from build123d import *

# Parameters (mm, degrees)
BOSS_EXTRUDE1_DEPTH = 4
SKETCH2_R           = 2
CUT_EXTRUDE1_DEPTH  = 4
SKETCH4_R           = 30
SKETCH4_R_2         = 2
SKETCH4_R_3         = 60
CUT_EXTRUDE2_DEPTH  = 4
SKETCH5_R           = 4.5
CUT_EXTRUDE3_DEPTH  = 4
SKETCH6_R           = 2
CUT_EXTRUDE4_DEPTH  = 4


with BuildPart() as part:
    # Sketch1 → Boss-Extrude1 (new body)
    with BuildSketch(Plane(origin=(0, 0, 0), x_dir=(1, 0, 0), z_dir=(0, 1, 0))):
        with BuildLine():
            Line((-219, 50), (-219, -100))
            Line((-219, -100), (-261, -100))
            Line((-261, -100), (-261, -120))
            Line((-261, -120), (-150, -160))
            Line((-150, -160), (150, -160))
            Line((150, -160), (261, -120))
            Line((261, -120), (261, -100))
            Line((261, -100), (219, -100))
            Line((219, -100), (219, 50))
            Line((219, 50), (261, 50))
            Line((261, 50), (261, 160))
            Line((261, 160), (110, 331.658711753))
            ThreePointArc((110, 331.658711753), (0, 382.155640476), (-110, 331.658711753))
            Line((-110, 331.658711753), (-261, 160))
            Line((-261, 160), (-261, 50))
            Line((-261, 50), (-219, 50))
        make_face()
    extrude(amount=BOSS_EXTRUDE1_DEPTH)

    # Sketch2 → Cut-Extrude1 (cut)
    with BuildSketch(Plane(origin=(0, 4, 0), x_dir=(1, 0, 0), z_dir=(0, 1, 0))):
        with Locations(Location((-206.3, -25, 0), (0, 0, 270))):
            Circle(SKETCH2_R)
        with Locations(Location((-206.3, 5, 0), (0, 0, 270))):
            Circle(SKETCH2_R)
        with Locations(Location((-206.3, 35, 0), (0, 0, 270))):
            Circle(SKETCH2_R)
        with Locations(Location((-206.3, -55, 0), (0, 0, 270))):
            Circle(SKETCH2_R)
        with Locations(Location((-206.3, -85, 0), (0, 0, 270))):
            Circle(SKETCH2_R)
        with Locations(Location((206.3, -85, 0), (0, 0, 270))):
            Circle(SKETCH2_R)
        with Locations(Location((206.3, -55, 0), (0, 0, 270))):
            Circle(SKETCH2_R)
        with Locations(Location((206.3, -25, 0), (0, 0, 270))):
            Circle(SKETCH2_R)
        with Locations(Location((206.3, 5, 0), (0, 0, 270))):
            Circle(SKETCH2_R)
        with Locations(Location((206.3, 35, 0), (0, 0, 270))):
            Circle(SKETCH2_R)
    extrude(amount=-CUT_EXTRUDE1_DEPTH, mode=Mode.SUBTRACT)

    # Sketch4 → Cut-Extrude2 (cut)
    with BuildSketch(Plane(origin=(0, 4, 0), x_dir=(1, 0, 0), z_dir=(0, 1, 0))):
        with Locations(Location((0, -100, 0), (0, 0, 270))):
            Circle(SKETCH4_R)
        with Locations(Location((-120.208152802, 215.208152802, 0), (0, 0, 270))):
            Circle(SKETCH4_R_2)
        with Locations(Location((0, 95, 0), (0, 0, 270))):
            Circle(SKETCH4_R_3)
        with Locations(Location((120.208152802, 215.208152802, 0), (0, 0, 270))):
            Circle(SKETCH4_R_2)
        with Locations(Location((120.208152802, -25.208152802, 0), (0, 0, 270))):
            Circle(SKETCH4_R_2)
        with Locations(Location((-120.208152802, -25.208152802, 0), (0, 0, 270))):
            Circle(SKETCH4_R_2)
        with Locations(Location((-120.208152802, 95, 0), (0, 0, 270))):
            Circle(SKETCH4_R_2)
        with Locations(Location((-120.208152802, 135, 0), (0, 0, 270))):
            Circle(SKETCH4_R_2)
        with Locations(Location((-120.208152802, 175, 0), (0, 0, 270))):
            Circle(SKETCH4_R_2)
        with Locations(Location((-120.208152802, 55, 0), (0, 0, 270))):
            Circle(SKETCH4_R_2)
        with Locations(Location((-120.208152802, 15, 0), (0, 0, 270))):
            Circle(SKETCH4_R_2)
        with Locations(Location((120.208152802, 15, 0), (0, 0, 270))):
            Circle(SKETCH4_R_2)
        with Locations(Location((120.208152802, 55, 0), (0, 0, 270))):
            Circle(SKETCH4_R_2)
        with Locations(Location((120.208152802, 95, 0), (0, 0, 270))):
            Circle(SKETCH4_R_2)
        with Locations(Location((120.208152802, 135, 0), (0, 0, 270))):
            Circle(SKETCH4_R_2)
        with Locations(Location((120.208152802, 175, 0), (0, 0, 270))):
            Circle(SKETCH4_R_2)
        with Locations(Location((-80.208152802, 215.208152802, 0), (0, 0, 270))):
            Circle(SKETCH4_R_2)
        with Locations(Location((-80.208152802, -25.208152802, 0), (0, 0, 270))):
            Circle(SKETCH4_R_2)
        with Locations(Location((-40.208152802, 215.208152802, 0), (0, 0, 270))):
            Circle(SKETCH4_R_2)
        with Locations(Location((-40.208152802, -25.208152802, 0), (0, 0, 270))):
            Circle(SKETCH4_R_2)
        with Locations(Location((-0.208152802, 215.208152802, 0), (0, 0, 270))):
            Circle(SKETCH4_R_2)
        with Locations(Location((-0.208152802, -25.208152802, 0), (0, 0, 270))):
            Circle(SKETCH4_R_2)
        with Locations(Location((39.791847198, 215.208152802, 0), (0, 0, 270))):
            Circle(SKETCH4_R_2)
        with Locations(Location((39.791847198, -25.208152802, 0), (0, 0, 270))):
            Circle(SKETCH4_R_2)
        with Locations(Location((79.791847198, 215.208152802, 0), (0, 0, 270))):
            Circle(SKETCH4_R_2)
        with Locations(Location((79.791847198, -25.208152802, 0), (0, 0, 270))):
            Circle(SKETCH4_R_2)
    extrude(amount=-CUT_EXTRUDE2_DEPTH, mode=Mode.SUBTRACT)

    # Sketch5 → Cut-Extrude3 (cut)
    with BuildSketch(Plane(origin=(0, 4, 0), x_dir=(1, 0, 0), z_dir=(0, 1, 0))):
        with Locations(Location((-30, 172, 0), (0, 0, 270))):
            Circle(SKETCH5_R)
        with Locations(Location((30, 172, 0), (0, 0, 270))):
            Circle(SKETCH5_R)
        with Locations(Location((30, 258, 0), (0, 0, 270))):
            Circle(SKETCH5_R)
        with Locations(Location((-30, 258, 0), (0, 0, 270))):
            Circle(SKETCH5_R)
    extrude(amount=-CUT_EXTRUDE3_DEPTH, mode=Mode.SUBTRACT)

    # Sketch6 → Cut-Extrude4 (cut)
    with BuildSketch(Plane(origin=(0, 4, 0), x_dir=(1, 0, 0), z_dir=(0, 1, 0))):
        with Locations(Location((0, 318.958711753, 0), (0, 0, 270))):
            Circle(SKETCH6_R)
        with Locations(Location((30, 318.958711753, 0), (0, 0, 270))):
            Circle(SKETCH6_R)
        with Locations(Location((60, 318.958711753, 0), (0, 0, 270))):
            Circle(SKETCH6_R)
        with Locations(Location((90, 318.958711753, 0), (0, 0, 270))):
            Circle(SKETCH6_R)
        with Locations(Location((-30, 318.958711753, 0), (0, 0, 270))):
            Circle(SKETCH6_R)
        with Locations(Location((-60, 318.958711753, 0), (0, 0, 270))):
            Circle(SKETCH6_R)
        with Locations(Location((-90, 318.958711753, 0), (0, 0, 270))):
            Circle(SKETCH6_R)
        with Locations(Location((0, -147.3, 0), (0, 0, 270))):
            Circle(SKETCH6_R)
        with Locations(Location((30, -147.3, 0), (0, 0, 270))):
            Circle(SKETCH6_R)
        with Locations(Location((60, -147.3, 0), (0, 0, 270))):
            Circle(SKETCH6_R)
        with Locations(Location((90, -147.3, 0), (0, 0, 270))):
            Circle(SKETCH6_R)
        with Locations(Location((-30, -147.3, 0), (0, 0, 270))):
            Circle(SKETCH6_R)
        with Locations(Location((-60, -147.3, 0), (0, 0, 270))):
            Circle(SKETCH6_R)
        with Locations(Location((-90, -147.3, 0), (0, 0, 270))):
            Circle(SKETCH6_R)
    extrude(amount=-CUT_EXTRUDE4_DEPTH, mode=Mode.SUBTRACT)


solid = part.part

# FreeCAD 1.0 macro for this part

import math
import FreeCAD as App
import Part
import Sketcher
from FreeCAD import Vector

doc = App.newDocument("Part")
params = doc.addObject("Spreadsheet::Sheet", "Params")
for row, (alias, value) in enumerate([
    ("sketch1_width", "42 mm"),
    ("sketch1_width2", "300 mm"),
    ("sketch1_height", "150 mm"),
    ("sketch1_height2", "20 mm"),
    ("sketch1_height3", "110 mm"),
    ("pad1_length", "4 mm"),
    ("sketch2_diameter", "4 mm"),
    ("pocket1_length", "4 mm"),
    ("sketch3_diameter", "60 mm"),
    ("sketch3_diameter2", "4 mm"),
    ("sketch3_diameter3", "120 mm"),
    ("pocket2_length", "4 mm"),
    ("sketch4_diameter", "9 mm"),
    ("pocket3_length", "4 mm"),
    ("sketch5_diameter", "4 mm"),
    ("pocket4_length", "4 mm"),
], start=1):
    params.set(f"A{row}", alias)
    params.set(f"B{row}", "=" + value)
    params.setAlias(f"B{row}", alias)

body = doc.addObject("PartDesign::Body", "Body")

sketch1 = body.newObject("Sketcher::SketchObject", "Sketch")
sketch1.AttachmentSupport = (doc.getObject("XZ_Plane"), [""])
sketch1.MapMode = "FlatFace"
sketch1.addGeometry([
    Part.LineSegment(Vector(-219, -50, 0), Vector(-219, 100, 0)),
    Part.LineSegment(Vector(-219, 100, 0), Vector(-261, 100, 0)),
    Part.LineSegment(Vector(-261, 100, 0), Vector(-261, 120, 0)),
    Part.LineSegment(Vector(-261, 120, 0), Vector(-150, 160, 0)),
    Part.LineSegment(Vector(-150, 160, 0), Vector(150, 160, 0)),
    Part.LineSegment(Vector(150, 160, 0), Vector(261, 120, 0)),
    Part.LineSegment(Vector(261, 120, 0), Vector(261, 100, 0)),
    Part.LineSegment(Vector(261, 100, 0), Vector(219, 100, 0)),
    Part.LineSegment(Vector(219, 100, 0), Vector(219, -50, 0)),
    Part.LineSegment(Vector(219, -50, 0), Vector(261, -50, 0)),
    Part.LineSegment(Vector(261, -50, 0), Vector(261, -160, 0)),
    Part.LineSegment(Vector(261, -160, 0), Vector(110, -332, 0)),
    Part.ArcOfCircle(Part.Circle(Vector(0, -237, 0), Vector(0, 0, 1), 145), math.radians(-139), math.radians(-41)),
    Part.LineSegment(Vector(-110, -332, 0), Vector(-261, -160, 0)),
    Part.LineSegment(Vector(-261, -160, 0), Vector(-261, -50, 0)),
    Part.LineSegment(Vector(-261, -50, 0), Vector(-219, -50, 0)),
], False)
sketch1.addConstraint([
    Sketcher.Constraint("Coincident", 0, 2, 1, 1),
    Sketcher.Constraint("Coincident", 1, 2, 2, 1),
    Sketcher.Constraint("Coincident", 2, 2, 3, 1),
    Sketcher.Constraint("Coincident", 3, 2, 4, 1),
    Sketcher.Constraint("Coincident", 4, 2, 5, 1),
    Sketcher.Constraint("Coincident", 5, 2, 6, 1),
    Sketcher.Constraint("Coincident", 6, 2, 7, 1),
    Sketcher.Constraint("Coincident", 7, 2, 8, 1),
    Sketcher.Constraint("Coincident", 8, 2, 9, 1),
    Sketcher.Constraint("Coincident", 9, 2, 10, 1),
    Sketcher.Constraint("Coincident", 10, 2, 11, 1),
    Sketcher.Constraint("Coincident", 11, 2, 12, 2),
    Sketcher.Constraint("Coincident", 12, 1, 13, 1),
    Sketcher.Constraint("Coincident", 13, 2, 14, 1),
    Sketcher.Constraint("Coincident", 14, 2, 15, 1),
    Sketcher.Constraint("Coincident", 15, 2, 0, 1),
    Sketcher.Constraint("Vertical", 0),
    Sketcher.Constraint("Horizontal", 1),
    Sketcher.Constraint("Vertical", 2),
    Sketcher.Constraint("Horizontal", 4),
    Sketcher.Constraint("Vertical", 6),
    Sketcher.Constraint("Horizontal", 7),
    Sketcher.Constraint("Vertical", 8),
    Sketcher.Constraint("Horizontal", 9),
    Sketcher.Constraint("Vertical", 10),
    Sketcher.Constraint("Vertical", 14),
    Sketcher.Constraint("Horizontal", 15),
    Sketcher.Constraint("Symmetric", 2, 2, 5, 2, -2),
    Sketcher.Constraint("Symmetric", 0, 2, 7, 2, -2),
    Sketcher.Constraint("Symmetric", 11, 2, 12, 1, -2),
    Sketcher.Constraint("Symmetric", 10, 2, 13, 2, -2),
    Sketcher.Constraint("Horizontal", 9, 2, 14, 2),
    Sketcher.Constraint("Vertical", 6, 2, 9, 2),
    Sketcher.Constraint("Equal", 3, 5),
    Sketcher.Constraint("DistanceX", 1, 2, 1, 1, 42.0),
    Sketcher.Constraint("DistanceX", 4, 1, 4, 2, 300.0),
    Sketcher.Constraint("DistanceY", 0, 1, 0, 2, 150.0),
    Sketcher.Constraint("DistanceY", 2, 1, 2, 2, 20.0),
    Sketcher.Constraint("DistanceY", 10, 2, 10, 1, 110.0),
    Sketcher.Constraint("DistanceX", 0, 2, -1, 1, 219.0),
    Sketcher.Constraint("DistanceY", -1, 1, 0, 2, 100.0),
    Sketcher.Constraint("DistanceY", -1, 1, 3, 2, 160.0),
    Sketcher.Constraint("DistanceX", -1, 1, 11, 2, 110.0),
    Sketcher.Constraint("Radius", 12, 145.057731),
    Sketcher.Constraint("Distance", 11, 228.621332),
])
sketch1.setExpression("Constraints[34]", "Params.sketch1_width")
sketch1.setExpression("Constraints[35]", "Params.sketch1_width2")
sketch1.setExpression("Constraints[36]", "Params.sketch1_height")
sketch1.setExpression("Constraints[37]", "Params.sketch1_height2")
sketch1.setExpression("Constraints[38]", "Params.sketch1_height3")
pad1 = body.newObject("PartDesign::Pad", "Pad")
pad1.Profile = sketch1
pad1.setExpression("Length", "Params.pad1_length")
pad1.Reversed = True

sketch2 = body.newObject("Sketcher::SketchObject", "Sketch001")
sketch2.AttachmentSupport = (doc.getObject("XZ_Plane"), [""])
sketch2.MapMode = "FlatFace"
sketch2.AttachmentOffset = App.Placement(Vector(0, 0, -4), App.Rotation())
sketch2.addGeometry([
    Part.Circle(Vector(-206.3, 25, 0), Vector(0, 0, 1), 2),
    Part.Circle(Vector(-206.3, -5, 0), Vector(0, 0, 1), 2),
    Part.Circle(Vector(-206.3, -35, 0), Vector(0, 0, 1), 2),
    Part.Circle(Vector(-206.3, 55, 0), Vector(0, 0, 1), 2),
    Part.Circle(Vector(-206.3, 85, 0), Vector(0, 0, 1), 2),
    Part.Circle(Vector(206.3, 85, 0), Vector(0, 0, 1), 2),
    Part.Circle(Vector(206.3, 55, 0), Vector(0, 0, 1), 2),
    Part.Circle(Vector(206.3, 25, 0), Vector(0, 0, 1), 2),
    Part.Circle(Vector(206.3, -5, 0), Vector(0, 0, 1), 2),
    Part.Circle(Vector(206.3, -35, 0), Vector(0, 0, 1), 2),
], False)
sketch2.addConstraint([
    Sketcher.Constraint("Equal", 0, 1),
    Sketcher.Constraint("Equal", 1, 2),
    Sketcher.Constraint("Equal", 2, 3),
    Sketcher.Constraint("Equal", 3, 4),
    Sketcher.Constraint("Equal", 4, 5),
    Sketcher.Constraint("Equal", 5, 6),
    Sketcher.Constraint("Equal", 6, 7),
    Sketcher.Constraint("Equal", 7, 8),
    Sketcher.Constraint("Equal", 8, 9),
    Sketcher.Constraint("Symmetric", 4, 3, 5, 3, -2),
    Sketcher.Constraint("Symmetric", 3, 3, 6, 3, -2),
    Sketcher.Constraint("Symmetric", 0, 3, 7, 3, -2),
    Sketcher.Constraint("Symmetric", 1, 3, 8, 3, -2),
    Sketcher.Constraint("Symmetric", 2, 3, 9, 3, -2),
    Sketcher.Constraint("Vertical", 0, 3, 1, 3),
    Sketcher.Constraint("Vertical", 1, 3, 2, 3),
    Sketcher.Constraint("Vertical", 2, 3, 3, 3),
    Sketcher.Constraint("Vertical", 3, 3, 4, 3),
    Sketcher.Constraint("Diameter", 0, 4.0),
    Sketcher.Constraint("DistanceY", -1, 1, 0, 3, 25.0),
    Sketcher.Constraint("DistanceY", 1, 3, -1, 1, 5.0),
    Sketcher.Constraint("DistanceY", 2, 3, -1, 1, 35.0),
    Sketcher.Constraint("DistanceY", -1, 1, 3, 3, 55.0),
    Sketcher.Constraint("DistanceY", -1, 1, 4, 3, 85.0),
    Sketcher.Constraint("DistanceX", 0, 3, -1, 1, 206.3),
])
sketch2.setExpression("Constraints[18]", "Params.sketch2_diameter")
pocket1 = body.newObject("PartDesign::Pocket", "Pocket")
pocket1.Profile = sketch2
pocket1.setExpression("Length", "Params.pocket1_length")
pocket1.Reversed = True

sketch3 = body.newObject("Sketcher::SketchObject", "Sketch002")
sketch3.AttachmentSupport = (doc.getObject("XZ_Plane"), [""])
sketch3.MapMode = "FlatFace"
sketch3.AttachmentOffset = App.Placement(Vector(0, 0, -4), App.Rotation())
sketch3.addGeometry([
    Part.Circle(Vector(0, 100, 0), Vector(0, 0, 1), 30),
    Part.Circle(Vector(-120.2, -215.2, 0), Vector(0, 0, 1), 2),
    Part.Circle(Vector(0, -95, 0), Vector(0, 0, 1), 60),
    Part.Circle(Vector(120.2, -215.2, 0), Vector(0, 0, 1), 2),
    Part.Circle(Vector(120.2, 25.2, 0), Vector(0, 0, 1), 2),
    Part.Circle(Vector(-120.2, 25.2, 0), Vector(0, 0, 1), 2),
    Part.Circle(Vector(-120.2, -95, 0), Vector(0, 0, 1), 2),
    Part.Circle(Vector(-120.2, -135, 0), Vector(0, 0, 1), 2),
    Part.Circle(Vector(-120.2, -175, 0), Vector(0, 0, 1), 2),
    Part.Circle(Vector(-120.2, -55, 0), Vector(0, 0, 1), 2),
    Part.Circle(Vector(-120.2, -15, 0), Vector(0, 0, 1), 2),
    Part.Circle(Vector(120.2, -15, 0), Vector(0, 0, 1), 2),
    Part.Circle(Vector(120.2, -55, 0), Vector(0, 0, 1), 2),
    Part.Circle(Vector(120.2, -95, 0), Vector(0, 0, 1), 2),
    Part.Circle(Vector(120.2, -135, 0), Vector(0, 0, 1), 2),
    Part.Circle(Vector(120.2, -175, 0), Vector(0, 0, 1), 2),
    Part.Circle(Vector(-80.2, -215.2, 0), Vector(0, 0, 1), 2),
    Part.Circle(Vector(-80.2, 25.2, 0), Vector(0, 0, 1), 2),
    Part.Circle(Vector(-40.2, -215.2, 0), Vector(0, 0, 1), 2),
    Part.Circle(Vector(-40.2, 25.2, 0), Vector(0, 0, 1), 2),
    Part.Circle(Vector(-0.2, -215.2, 0), Vector(0, 0, 1), 2),
    Part.Circle(Vector(-0.2, 25.2, 0), Vector(0, 0, 1), 2),
    Part.Circle(Vector(39.8, -215.2, 0), Vector(0, 0, 1), 2),
    Part.Circle(Vector(39.8, 25.2, 0), Vector(0, 0, 1), 2),
    Part.Circle(Vector(79.8, -215.2, 0), Vector(0, 0, 1), 2),
    Part.Circle(Vector(79.8, 25.2, 0), Vector(0, 0, 1), 2),
], False)
sketch3.addConstraint([
    Sketcher.Constraint("Equal", 1, 3),
    Sketcher.Constraint("Equal", 3, 4),
    Sketcher.Constraint("Equal", 4, 5),
    Sketcher.Constraint("Equal", 5, 6),
    Sketcher.Constraint("Equal", 6, 7),
    Sketcher.Constraint("Equal", 7, 8),
    Sketcher.Constraint("Equal", 8, 9),
    Sketcher.Constraint("Equal", 9, 10),
    Sketcher.Constraint("Equal", 10, 11),
    Sketcher.Constraint("Equal", 11, 12),
    Sketcher.Constraint("Equal", 12, 13),
    Sketcher.Constraint("Equal", 13, 14),
    Sketcher.Constraint("Equal", 14, 15),
    Sketcher.Constraint("Equal", 15, 16),
    Sketcher.Constraint("Equal", 16, 17),
    Sketcher.Constraint("Equal", 17, 18),
    Sketcher.Constraint("Equal", 18, 19),
    Sketcher.Constraint("Equal", 19, 20),
    Sketcher.Constraint("Equal", 20, 21),
    Sketcher.Constraint("Equal", 21, 22),
    Sketcher.Constraint("Equal", 22, 23),
    Sketcher.Constraint("Equal", 23, 24),
    Sketcher.Constraint("Equal", 24, 25),
    Sketcher.Constraint("Symmetric", 1, 3, 3, 3, -2),
    Sketcher.Constraint("Symmetric", 4, 3, 5, 3, -2),
    Sketcher.Constraint("Symmetric", 10, 3, 11, 3, -2),
    Sketcher.Constraint("Symmetric", 9, 3, 12, 3, -2),
    Sketcher.Constraint("Symmetric", 6, 3, 13, 3, -2),
    Sketcher.Constraint("Symmetric", 7, 3, 14, 3, -2),
    Sketcher.Constraint("Symmetric", 8, 3, 15, 3, -2),
    Sketcher.Constraint("PointOnObject", 0, 3, -2),
    Sketcher.Constraint("PointOnObject", 2, 3, -2),
    Sketcher.Constraint("Horizontal", 2, 3, 6, 3),
    Sketcher.Constraint("Horizontal", 3, 3, 16, 3),
    Sketcher.Constraint("Horizontal", 5, 3, 17, 3),
    Sketcher.Constraint("Horizontal", 16, 3, 18, 3),
    Sketcher.Constraint("Horizontal", 17, 3, 19, 3),
    Sketcher.Constraint("Horizontal", 18, 3, 20, 3),
    Sketcher.Constraint("Horizontal", 19, 3, 21, 3),
    Sketcher.Constraint("Horizontal", 20, 3, 22, 3),
    Sketcher.Constraint("Horizontal", 21, 3, 23, 3),
    Sketcher.Constraint("Horizontal", 22, 3, 24, 3),
    Sketcher.Constraint("Horizontal", 23, 3, 25, 3),
    Sketcher.Constraint("Vertical", 3, 3, 4, 3),
    Sketcher.Constraint("Vertical", 5, 3, 6, 3),
    Sketcher.Constraint("Vertical", 6, 3, 7, 3),
    Sketcher.Constraint("Vertical", 7, 3, 8, 3),
    Sketcher.Constraint("Vertical", 8, 3, 9, 3),
    Sketcher.Constraint("Vertical", 9, 3, 10, 3),
    Sketcher.Constraint("Vertical", 16, 3, 17, 3),
    Sketcher.Constraint("Vertical", 18, 3, 19, 3),
    Sketcher.Constraint("Vertical", 20, 3, 21, 3),
    Sketcher.Constraint("Vertical", 22, 3, 23, 3),
    Sketcher.Constraint("Vertical", 24, 3, 25, 3),
    Sketcher.Constraint("Diameter", 0, 60.0),
    Sketcher.Constraint("Diameter", 1, 4.0),
    Sketcher.Constraint("Diameter", 2, 120.0),
    Sketcher.Constraint("DistanceY", -1, 1, 0, 3, 100.0),
    Sketcher.Constraint("DistanceY", 2, 3, -1, 1, 95.0),
    Sketcher.Constraint("DistanceY", 7, 3, -1, 1, 135.0),
    Sketcher.Constraint("DistanceY", 8, 3, -1, 1, 175.0),
    Sketcher.Constraint("DistanceY", 9, 3, -1, 1, 55.0),
    Sketcher.Constraint("DistanceY", 10, 3, -1, 1, 15.0),
    Sketcher.Constraint("DistanceX", 1, 3, 16, 3, 40.0),
    Sketcher.Constraint("DistanceX", 16, 3, 18, 3, 40.0),
    Sketcher.Constraint("DistanceX", 18, 3, 20, 3, 40.0),
    Sketcher.Constraint("DistanceX", 20, 3, 22, 3, 40.0),
    Sketcher.Constraint("DistanceX", 22, 3, 24, 3, 40.0),
    Sketcher.Constraint("DistanceX", 1, 3, -1, 1, 120.208153),
    Sketcher.Constraint("DistanceY", 1, 3, -1, 1, 215.208153),
    Sketcher.Constraint("DistanceY", -1, 1, 4, 3, 25.208153),
])
sketch3.setExpression("Constraints[54]", "Params.sketch3_diameter")
sketch3.setExpression("Constraints[55]", "Params.sketch3_diameter2")
sketch3.setExpression("Constraints[56]", "Params.sketch3_diameter3")
pocket2 = body.newObject("PartDesign::Pocket", "Pocket001")
pocket2.Profile = sketch3
pocket2.setExpression("Length", "Params.pocket2_length")
pocket2.Reversed = True

sketch4 = body.newObject("Sketcher::SketchObject", "Sketch003")
sketch4.AttachmentSupport = (doc.getObject("XZ_Plane"), [""])
sketch4.MapMode = "FlatFace"
sketch4.AttachmentOffset = App.Placement(Vector(0, 0, -4), App.Rotation())
sketch4.addGeometry([
    Part.Circle(Vector(-30, -172, 0), Vector(0, 0, 1), 4.5),
    Part.Circle(Vector(30, -172, 0), Vector(0, 0, 1), 4.5),
    Part.Circle(Vector(30, -258, 0), Vector(0, 0, 1), 4.5),
    Part.Circle(Vector(-30, -258, 0), Vector(0, 0, 1), 4.5),
], False)
sketch4.addConstraint([
    Sketcher.Constraint("Equal", 0, 1),
    Sketcher.Constraint("Equal", 1, 2),
    Sketcher.Constraint("Equal", 2, 3),
    Sketcher.Constraint("Symmetric", 0, 3, 1, 3, -2),
    Sketcher.Constraint("Symmetric", 2, 3, 3, 3, -2),
    Sketcher.Constraint("Vertical", 1, 3, 2, 3),
    Sketcher.Constraint("Diameter", 0, 9.0),
    Sketcher.Constraint("DistanceX", 0, 3, -1, 1, 30.0),
    Sketcher.Constraint("DistanceY", 0, 3, -1, 1, 172.0),
    Sketcher.Constraint("DistanceY", 2, 3, -1, 1, 258.0),
])
sketch4.setExpression("Constraints[6]", "Params.sketch4_diameter")
pocket3 = body.newObject("PartDesign::Pocket", "Pocket002")
pocket3.Profile = sketch4
pocket3.setExpression("Length", "Params.pocket3_length")
pocket3.Reversed = True

sketch5 = body.newObject("Sketcher::SketchObject", "Sketch004")
sketch5.AttachmentSupport = (doc.getObject("XZ_Plane"), [""])
sketch5.MapMode = "FlatFace"
sketch5.AttachmentOffset = App.Placement(Vector(0, 0, -4), App.Rotation())
sketch5.addGeometry([
    Part.Circle(Vector(0, -319, 0), Vector(0, 0, 1), 2),
    Part.Circle(Vector(30, -319, 0), Vector(0, 0, 1), 2),
    Part.Circle(Vector(60, -319, 0), Vector(0, 0, 1), 2),
    Part.Circle(Vector(90, -319, 0), Vector(0, 0, 1), 2),
    Part.Circle(Vector(-30, -319, 0), Vector(0, 0, 1), 2),
    Part.Circle(Vector(-60, -319, 0), Vector(0, 0, 1), 2),
    Part.Circle(Vector(-90, -319, 0), Vector(0, 0, 1), 2),
    Part.Circle(Vector(0, 147.3, 0), Vector(0, 0, 1), 2),
    Part.Circle(Vector(30, 147.3, 0), Vector(0, 0, 1), 2),
    Part.Circle(Vector(60, 147.3, 0), Vector(0, 0, 1), 2),
    Part.Circle(Vector(90, 147.3, 0), Vector(0, 0, 1), 2),
    Part.Circle(Vector(-30, 147.3, 0), Vector(0, 0, 1), 2),
    Part.Circle(Vector(-60, 147.3, 0), Vector(0, 0, 1), 2),
    Part.Circle(Vector(-90, 147.3, 0), Vector(0, 0, 1), 2),
], False)
sketch5.addConstraint([
    Sketcher.Constraint("Equal", 0, 1),
    Sketcher.Constraint("Equal", 1, 2),
    Sketcher.Constraint("Equal", 2, 3),
    Sketcher.Constraint("Equal", 3, 4),
    Sketcher.Constraint("Equal", 4, 5),
    Sketcher.Constraint("Equal", 5, 6),
    Sketcher.Constraint("Equal", 6, 7),
    Sketcher.Constraint("Equal", 7, 8),
    Sketcher.Constraint("Equal", 8, 9),
    Sketcher.Constraint("Equal", 9, 10),
    Sketcher.Constraint("Equal", 10, 11),
    Sketcher.Constraint("Equal", 11, 12),
    Sketcher.Constraint("Equal", 12, 13),
    Sketcher.Constraint("Symmetric", 1, 3, 4, 3, -2),
    Sketcher.Constraint("Symmetric", 2, 3, 5, 3, -2),
    Sketcher.Constraint("Symmetric", 3, 3, 6, 3, -2),
    Sketcher.Constraint("Symmetric", 8, 3, 11, 3, -2),
    Sketcher.Constraint("Symmetric", 9, 3, 12, 3, -2),
    Sketcher.Constraint("Symmetric", 10, 3, 13, 3, -2),
    Sketcher.Constraint("PointOnObject", 0, 3, -2),
    Sketcher.Constraint("PointOnObject", 7, 3, -2),
    Sketcher.Constraint("Horizontal", 0, 3, 1, 3),
    Sketcher.Constraint("Horizontal", 1, 3, 2, 3),
    Sketcher.Constraint("Horizontal", 2, 3, 3, 3),
    Sketcher.Constraint("Horizontal", 7, 3, 8, 3),
    Sketcher.Constraint("Horizontal", 8, 3, 9, 3),
    Sketcher.Constraint("Horizontal", 9, 3, 10, 3),
    Sketcher.Constraint("Vertical", 1, 3, 8, 3),
    Sketcher.Constraint("Vertical", 2, 3, 9, 3),
    Sketcher.Constraint("Vertical", 3, 3, 10, 3),
    Sketcher.Constraint("Diameter", 0, 4.0),
    Sketcher.Constraint("DistanceX", -1, 1, 1, 3, 30.0),
    Sketcher.Constraint("DistanceX", -1, 1, 2, 3, 60.0),
    Sketcher.Constraint("DistanceX", -1, 1, 3, 3, 90.0),
    Sketcher.Constraint("DistanceY", -1, 1, 7, 3, 147.3),
    Sketcher.Constraint("DistanceY", 0, 3, -1, 1, 318.958712),
])
sketch5.setExpression("Constraints[30]", "Params.sketch5_diameter")
pocket4 = body.newObject("PartDesign::Pocket", "Pocket003")
pocket4.Profile = sketch5
pocket4.setExpression("Length", "Params.pocket4_length")
pocket4.Reversed = True

doc.recompute()
